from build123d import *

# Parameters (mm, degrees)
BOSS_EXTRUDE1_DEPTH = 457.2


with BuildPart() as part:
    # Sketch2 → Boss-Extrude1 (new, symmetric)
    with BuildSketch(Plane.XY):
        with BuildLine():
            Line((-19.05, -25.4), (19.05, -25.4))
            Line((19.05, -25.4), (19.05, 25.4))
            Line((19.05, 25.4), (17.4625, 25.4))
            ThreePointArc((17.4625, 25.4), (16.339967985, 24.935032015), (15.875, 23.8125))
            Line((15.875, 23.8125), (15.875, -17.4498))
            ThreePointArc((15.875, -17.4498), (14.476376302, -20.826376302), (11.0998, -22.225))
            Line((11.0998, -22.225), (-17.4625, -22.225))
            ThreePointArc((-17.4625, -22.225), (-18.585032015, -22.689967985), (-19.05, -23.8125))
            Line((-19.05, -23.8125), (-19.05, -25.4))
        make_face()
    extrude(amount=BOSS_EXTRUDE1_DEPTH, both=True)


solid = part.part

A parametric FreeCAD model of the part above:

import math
import FreeCAD as App
import Part
import Sketcher
Q = App.Units.Quantity

doc = App.newDocument("Part")
body = doc.addObject("PartDesign::Body", "Body")

# Sketch on XY plane
sketch1 = body.newObject("Sketcher::SketchObject", "Sketch")
sketch1.AttachmentSupport = (doc.getObject("XY_Plane"), [""])
sketch1.MapMode = "FlatFace"
sketch1.addGeometry([
    Part.LineSegment(App.Vector(-19.1, -25.4, 0), App.Vector(19.1, -25.4, 0)),  # 0
    Part.LineSegment(App.Vector(19.1, -25.4, 0), App.Vector(19.1, 25.4, 0)),  # 1
    Part.LineSegment(App.Vector(19.1, 25.4, 0), App.Vector(17.5, 25.4, 0)),  # 2
    Part.ArcOfCircle(Part.Circle(App.Vector(17.5, 23.8, 0), App.Vector(0, 0, 1), 1.6), math.radians(90), math.radians(180)),  # 3
    Part.LineSegment(App.Vector(15.9, 23.8, 0), App.Vector(15.9, -17.4, 0)),  # 4
    Part.ArcOfCircle(Part.Circle(App.Vector(11.1, -17.4, 0), App.Vector(0, 0, 1), 4.8), math.radians(-90), math.radians(0)),  # 5
    Part.LineSegment(App.Vector(11.1, -22.2, 0), App.Vector(-17.5, -22.2, 0)),  # 6
    Part.ArcOfCircle(Part.Circle(App.Vector(-17.5, -23.8, 0), App.Vector(0, 0, 1), 1.6), math.radians(90), math.radians(180)),  # 7
    Part.LineSegment(App.Vector(-19.1, -23.8, 0), App.Vector(-19.1, -25.4, 0)),  # 8
], False)
sketch1.addConstraint([
    Sketcher.Constraint("Coincident", 0, 2, 1, 1),
    Sketcher.Constraint("Coincident", 1, 2, 2, 1),
    Sketcher.Constraint("Tangent", 2, 2, 3, 1),
    Sketcher.Constraint("Tangent", 3, 2, 4, 1),
    Sketcher.Constraint("Tangent", 4, 2, 5, 2),
    Sketcher.Constraint("Tangent", 5, 1, 6, 1),
    Sketcher.Constraint("Tangent", 6, 2, 7, 1),
    Sketcher.Constraint("Tangent", 7, 2, 8, 1),
    Sketcher.Constraint("Coincident", 8, 2, 0, 1),
    Sketcher.Constraint("Horizontal", 0),
    Sketcher.Constraint("Vertical", 1),
    Sketcher.Constraint("Horizontal", 2),
    Sketcher.Constraint("Vertical", 4),
    Sketcher.Constraint("Horizontal", 6),
    Sketcher.Constraint("Vertical", 8),
    Sketcher.Constraint("Equal", 3, 7),
    Sketcher.Constraint("Symmetric", 3, 3, 7, 3, -1, 1),
    Sketcher.Constraint("Symmetric", 1, 2, 8, 2, -1, 1),
    Sketcher.Constraint("DistanceY", 1, 1, 1, 2, Q("2 in")),
    Sketcher.Constraint("DistanceX", 0, 1, 0, 2, Q("1.5 in")),
    Sketcher.Constraint("Radius", 3, Q("0.0625 in")),
    Sketcher.Constraint("Radius", 5, Q("0.188 in")),
])
pad1 = body.newObject("PartDesign::Pad", "Pad")
pad1.Profile = sketch1
pad1.Length = Q("36 in")
pad1.Midplane = True

doc.recompute()
